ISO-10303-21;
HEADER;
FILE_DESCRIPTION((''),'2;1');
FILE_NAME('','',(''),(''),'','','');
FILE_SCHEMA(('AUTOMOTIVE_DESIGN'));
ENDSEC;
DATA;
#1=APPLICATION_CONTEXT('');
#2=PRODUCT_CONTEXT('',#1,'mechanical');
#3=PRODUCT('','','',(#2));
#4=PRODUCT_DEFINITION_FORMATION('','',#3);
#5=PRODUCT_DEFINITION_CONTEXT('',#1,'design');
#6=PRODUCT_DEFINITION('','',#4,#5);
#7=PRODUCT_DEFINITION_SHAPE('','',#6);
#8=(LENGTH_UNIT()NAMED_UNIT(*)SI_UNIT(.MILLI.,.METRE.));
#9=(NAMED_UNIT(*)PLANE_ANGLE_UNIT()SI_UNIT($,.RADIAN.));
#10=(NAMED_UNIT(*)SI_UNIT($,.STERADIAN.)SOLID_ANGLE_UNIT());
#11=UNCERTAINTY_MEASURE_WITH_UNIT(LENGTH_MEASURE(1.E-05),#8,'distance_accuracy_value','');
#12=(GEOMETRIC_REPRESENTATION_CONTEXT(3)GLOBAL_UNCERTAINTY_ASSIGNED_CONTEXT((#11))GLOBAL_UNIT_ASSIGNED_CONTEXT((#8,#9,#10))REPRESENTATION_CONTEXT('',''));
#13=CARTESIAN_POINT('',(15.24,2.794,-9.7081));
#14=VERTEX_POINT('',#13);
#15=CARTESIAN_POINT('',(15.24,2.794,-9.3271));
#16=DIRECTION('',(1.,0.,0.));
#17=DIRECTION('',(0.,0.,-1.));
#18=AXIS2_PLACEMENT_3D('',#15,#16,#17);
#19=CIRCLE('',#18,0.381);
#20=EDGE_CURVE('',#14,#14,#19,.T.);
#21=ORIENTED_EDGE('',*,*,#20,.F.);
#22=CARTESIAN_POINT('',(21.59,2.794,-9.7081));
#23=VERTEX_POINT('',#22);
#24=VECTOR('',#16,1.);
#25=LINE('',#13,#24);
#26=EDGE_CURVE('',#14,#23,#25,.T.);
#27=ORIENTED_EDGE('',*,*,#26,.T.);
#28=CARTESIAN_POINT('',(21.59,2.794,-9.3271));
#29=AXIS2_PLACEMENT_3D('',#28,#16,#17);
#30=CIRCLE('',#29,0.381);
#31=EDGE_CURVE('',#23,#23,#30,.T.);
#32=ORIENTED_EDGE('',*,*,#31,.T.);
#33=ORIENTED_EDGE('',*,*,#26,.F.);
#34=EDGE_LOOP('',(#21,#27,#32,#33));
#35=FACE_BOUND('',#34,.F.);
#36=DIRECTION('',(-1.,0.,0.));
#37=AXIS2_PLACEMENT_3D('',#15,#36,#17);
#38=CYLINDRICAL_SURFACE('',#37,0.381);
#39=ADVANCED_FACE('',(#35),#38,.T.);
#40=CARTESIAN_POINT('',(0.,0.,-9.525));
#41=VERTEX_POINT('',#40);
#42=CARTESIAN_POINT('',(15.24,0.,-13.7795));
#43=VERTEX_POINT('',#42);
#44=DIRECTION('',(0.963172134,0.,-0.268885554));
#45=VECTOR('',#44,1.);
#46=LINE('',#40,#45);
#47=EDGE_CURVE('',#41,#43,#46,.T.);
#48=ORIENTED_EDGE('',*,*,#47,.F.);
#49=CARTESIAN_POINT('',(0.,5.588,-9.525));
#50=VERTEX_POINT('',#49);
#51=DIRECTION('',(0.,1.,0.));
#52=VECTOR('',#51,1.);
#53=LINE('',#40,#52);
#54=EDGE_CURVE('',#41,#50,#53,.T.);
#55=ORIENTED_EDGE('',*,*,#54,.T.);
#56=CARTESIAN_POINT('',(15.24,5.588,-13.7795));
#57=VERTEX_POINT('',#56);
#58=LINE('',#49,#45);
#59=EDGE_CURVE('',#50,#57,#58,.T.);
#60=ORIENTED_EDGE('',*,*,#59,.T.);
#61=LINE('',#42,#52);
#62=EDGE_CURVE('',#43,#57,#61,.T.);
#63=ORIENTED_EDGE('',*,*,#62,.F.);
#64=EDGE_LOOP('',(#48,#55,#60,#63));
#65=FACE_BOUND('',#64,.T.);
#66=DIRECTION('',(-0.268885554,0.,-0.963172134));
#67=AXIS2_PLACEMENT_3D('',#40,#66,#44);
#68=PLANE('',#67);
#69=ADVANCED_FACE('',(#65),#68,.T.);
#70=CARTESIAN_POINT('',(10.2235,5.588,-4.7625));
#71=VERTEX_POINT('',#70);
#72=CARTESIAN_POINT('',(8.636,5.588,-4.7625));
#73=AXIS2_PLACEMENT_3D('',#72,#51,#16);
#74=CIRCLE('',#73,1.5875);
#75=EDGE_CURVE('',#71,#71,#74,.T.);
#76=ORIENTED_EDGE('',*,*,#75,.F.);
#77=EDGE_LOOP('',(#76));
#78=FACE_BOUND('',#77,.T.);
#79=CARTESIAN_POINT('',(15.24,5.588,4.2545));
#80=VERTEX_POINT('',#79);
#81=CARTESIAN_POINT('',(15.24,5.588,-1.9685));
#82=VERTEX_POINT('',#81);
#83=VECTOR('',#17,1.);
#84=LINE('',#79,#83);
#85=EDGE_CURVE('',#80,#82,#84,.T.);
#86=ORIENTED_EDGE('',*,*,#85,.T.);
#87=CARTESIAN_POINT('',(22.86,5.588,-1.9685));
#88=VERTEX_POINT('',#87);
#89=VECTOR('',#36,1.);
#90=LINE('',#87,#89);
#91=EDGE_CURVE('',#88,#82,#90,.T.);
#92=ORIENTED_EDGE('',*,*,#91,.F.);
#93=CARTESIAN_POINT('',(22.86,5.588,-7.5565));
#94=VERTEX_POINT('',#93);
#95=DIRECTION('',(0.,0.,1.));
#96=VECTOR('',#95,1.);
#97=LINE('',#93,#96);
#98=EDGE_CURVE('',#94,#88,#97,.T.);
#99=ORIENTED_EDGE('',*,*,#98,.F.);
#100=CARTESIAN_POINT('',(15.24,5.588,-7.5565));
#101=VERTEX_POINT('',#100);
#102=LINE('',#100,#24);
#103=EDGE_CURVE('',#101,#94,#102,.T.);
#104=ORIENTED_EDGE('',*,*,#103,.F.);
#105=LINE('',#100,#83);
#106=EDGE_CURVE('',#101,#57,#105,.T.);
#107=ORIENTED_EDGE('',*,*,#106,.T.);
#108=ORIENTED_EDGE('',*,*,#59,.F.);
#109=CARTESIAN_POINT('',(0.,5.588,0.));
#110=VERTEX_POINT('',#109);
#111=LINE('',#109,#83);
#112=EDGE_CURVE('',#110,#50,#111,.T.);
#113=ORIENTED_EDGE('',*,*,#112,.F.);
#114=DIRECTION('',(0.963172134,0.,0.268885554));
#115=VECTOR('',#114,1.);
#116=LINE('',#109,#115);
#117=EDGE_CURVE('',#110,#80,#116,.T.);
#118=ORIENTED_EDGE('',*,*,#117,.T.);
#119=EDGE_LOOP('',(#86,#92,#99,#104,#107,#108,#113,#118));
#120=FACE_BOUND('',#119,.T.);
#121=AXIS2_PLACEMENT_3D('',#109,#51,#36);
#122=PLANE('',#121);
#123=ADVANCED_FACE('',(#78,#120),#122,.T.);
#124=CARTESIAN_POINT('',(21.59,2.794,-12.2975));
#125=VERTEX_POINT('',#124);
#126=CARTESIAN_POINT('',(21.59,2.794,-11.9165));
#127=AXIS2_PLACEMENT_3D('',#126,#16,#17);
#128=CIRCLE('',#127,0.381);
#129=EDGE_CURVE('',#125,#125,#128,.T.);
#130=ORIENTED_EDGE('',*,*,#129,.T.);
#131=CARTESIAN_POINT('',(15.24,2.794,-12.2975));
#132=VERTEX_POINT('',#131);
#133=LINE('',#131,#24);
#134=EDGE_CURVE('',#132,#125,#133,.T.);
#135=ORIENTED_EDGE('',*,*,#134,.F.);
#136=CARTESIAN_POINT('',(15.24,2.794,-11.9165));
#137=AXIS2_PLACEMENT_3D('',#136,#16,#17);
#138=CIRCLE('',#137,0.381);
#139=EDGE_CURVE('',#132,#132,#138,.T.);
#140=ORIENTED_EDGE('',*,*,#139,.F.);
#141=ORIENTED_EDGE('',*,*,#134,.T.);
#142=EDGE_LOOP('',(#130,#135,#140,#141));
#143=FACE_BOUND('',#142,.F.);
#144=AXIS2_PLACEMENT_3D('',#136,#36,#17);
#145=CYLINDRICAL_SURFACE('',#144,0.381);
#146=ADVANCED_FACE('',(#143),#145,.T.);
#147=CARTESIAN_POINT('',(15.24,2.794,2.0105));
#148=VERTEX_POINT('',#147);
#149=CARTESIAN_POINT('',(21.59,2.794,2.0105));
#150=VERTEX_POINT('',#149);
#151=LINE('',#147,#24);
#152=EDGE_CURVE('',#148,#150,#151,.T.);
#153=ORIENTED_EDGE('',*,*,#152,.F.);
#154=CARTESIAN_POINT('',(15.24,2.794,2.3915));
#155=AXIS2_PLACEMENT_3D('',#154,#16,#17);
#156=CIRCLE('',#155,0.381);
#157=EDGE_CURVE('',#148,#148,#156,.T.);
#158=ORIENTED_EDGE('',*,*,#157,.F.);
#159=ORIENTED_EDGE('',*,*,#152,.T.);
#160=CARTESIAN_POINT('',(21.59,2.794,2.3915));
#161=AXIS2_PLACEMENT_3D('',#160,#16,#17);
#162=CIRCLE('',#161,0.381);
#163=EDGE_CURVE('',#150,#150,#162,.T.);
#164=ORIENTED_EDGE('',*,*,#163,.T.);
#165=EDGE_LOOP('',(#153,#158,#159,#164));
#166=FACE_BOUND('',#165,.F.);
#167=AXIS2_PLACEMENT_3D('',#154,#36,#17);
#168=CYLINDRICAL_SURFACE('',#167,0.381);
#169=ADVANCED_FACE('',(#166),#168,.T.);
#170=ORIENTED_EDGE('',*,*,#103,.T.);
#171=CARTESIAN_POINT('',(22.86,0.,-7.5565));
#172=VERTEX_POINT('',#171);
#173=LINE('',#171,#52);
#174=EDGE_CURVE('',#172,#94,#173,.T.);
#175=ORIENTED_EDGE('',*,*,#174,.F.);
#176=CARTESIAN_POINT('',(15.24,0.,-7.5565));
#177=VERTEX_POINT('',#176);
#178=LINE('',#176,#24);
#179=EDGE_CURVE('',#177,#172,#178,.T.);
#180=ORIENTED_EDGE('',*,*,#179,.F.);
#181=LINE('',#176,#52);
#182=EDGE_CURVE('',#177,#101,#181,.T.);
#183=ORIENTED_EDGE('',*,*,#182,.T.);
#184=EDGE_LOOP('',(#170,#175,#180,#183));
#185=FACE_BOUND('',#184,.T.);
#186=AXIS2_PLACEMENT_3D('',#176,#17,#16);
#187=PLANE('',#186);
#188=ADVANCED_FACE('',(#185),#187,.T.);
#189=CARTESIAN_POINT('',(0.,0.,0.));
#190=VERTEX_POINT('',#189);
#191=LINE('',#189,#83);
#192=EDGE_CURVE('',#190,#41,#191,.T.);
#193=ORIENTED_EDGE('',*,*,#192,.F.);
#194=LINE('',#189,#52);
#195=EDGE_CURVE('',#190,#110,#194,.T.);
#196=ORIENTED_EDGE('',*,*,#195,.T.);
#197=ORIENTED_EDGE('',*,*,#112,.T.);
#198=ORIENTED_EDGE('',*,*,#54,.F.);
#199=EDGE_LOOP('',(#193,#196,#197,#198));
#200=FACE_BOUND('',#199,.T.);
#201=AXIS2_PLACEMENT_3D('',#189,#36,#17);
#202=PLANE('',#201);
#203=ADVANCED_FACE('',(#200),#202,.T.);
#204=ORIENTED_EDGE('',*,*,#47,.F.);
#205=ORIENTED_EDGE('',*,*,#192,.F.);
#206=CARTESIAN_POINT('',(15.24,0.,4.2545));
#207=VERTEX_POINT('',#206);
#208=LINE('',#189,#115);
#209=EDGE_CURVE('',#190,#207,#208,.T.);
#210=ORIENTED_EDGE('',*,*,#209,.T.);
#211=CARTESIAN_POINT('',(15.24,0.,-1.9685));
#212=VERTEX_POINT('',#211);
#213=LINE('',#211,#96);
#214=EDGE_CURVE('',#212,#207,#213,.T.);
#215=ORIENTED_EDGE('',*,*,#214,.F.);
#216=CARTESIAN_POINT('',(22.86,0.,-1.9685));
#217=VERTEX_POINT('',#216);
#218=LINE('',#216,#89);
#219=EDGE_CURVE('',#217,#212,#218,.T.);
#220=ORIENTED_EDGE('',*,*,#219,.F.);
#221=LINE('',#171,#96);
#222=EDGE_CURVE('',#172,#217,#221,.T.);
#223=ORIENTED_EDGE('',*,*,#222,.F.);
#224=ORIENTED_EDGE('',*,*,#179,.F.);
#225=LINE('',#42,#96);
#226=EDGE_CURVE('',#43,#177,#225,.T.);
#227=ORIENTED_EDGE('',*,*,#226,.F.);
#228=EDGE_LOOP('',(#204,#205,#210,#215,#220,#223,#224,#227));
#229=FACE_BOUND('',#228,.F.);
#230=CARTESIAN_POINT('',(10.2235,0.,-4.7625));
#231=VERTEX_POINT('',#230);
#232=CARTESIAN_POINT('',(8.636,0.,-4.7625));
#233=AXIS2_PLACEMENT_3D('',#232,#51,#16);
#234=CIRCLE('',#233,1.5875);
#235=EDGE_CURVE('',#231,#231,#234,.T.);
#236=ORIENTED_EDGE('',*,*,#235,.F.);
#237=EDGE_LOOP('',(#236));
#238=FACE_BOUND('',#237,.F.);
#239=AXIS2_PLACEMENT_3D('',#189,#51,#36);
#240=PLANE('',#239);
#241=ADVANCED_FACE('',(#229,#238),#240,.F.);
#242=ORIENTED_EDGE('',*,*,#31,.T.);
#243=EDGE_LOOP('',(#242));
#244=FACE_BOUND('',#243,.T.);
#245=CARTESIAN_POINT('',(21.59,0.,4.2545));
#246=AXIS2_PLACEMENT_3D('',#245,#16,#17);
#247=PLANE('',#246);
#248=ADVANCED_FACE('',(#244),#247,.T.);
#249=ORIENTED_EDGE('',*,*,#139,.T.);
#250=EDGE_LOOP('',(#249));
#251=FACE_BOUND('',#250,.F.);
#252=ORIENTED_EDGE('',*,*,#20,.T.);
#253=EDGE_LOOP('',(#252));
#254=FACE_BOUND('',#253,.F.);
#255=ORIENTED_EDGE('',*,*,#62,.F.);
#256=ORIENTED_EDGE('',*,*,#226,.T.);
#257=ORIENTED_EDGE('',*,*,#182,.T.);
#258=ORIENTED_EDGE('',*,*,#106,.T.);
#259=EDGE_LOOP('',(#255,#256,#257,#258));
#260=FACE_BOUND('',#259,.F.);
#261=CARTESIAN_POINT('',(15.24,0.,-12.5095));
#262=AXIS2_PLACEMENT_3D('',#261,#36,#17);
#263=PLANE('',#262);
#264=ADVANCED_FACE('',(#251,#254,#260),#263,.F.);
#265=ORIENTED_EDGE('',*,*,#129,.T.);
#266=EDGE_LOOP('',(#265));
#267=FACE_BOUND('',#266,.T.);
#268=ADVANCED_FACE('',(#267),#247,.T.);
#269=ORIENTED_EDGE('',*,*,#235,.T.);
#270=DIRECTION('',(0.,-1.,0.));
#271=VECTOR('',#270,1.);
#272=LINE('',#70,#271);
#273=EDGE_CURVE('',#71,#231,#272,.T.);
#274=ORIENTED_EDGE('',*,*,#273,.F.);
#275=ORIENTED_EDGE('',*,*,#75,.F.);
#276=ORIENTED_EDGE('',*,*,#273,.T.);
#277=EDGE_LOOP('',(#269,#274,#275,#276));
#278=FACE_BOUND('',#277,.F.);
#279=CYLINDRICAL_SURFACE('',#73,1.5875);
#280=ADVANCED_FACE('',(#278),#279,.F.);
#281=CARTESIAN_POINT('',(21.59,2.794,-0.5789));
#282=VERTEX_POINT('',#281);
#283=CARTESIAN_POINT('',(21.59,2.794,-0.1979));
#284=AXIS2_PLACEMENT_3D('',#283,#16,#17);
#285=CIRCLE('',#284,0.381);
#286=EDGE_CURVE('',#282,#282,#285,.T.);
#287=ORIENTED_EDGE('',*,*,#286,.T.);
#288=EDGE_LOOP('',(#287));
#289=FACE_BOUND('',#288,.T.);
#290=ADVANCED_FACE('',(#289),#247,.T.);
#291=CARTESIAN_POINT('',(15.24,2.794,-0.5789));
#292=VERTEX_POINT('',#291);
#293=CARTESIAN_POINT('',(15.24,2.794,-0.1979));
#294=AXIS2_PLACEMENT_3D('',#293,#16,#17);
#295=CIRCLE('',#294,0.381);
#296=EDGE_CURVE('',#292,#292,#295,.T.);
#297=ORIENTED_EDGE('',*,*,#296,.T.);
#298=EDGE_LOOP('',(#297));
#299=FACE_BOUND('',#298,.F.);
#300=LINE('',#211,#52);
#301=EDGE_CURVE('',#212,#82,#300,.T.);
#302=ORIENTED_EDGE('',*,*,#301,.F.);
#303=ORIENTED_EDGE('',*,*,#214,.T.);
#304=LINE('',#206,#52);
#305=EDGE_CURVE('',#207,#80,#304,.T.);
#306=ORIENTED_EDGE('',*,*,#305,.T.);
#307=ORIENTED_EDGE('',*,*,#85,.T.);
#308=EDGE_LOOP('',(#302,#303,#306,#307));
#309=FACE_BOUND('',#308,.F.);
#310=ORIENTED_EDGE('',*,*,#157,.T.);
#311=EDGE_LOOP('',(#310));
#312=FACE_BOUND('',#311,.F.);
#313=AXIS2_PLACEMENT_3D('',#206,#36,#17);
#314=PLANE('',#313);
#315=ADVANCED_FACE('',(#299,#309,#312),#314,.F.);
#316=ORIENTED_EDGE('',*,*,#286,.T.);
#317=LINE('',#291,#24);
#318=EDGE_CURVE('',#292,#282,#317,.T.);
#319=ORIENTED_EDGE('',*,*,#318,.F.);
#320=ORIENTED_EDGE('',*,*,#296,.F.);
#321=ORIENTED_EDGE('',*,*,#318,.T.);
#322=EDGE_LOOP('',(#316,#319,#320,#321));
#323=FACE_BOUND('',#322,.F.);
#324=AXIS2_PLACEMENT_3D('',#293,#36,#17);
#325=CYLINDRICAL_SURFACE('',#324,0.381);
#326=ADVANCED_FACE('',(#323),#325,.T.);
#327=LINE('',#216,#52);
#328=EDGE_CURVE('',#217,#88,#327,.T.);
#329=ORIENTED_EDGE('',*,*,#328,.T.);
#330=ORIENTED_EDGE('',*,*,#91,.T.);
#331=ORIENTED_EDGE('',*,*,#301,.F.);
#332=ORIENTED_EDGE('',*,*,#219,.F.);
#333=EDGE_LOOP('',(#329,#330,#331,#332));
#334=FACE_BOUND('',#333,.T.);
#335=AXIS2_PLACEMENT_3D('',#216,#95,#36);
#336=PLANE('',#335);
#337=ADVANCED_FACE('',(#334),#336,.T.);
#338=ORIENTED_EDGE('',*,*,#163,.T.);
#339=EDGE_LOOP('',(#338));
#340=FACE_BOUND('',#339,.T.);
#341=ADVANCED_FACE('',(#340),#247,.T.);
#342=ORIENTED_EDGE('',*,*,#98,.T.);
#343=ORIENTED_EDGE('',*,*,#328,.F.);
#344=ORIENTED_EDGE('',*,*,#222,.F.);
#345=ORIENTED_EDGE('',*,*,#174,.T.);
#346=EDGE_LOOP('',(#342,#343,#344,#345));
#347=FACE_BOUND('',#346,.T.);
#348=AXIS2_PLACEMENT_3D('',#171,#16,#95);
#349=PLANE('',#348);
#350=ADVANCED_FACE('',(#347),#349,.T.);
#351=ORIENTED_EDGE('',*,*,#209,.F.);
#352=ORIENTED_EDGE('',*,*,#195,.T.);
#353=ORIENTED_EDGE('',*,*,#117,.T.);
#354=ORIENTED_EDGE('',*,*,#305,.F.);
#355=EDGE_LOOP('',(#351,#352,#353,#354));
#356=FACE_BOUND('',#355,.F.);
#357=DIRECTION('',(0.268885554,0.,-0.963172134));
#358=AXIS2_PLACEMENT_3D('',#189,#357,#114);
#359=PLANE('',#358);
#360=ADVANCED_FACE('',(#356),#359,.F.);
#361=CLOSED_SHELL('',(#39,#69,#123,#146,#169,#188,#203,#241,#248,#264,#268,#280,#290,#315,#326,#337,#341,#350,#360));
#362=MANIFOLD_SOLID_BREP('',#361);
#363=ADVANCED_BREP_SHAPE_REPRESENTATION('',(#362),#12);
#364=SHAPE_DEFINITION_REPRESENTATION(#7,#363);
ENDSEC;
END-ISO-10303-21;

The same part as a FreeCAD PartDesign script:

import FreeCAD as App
import Part
import Sketcher
from FreeCAD import Vector
Q = App.Units.Quantity


def add_polygon(sketch, points):
    """Adds a closed chain of lines whose ends are joined by coincident constraints."""
    first, n = sketch.GeometryCount, len(points)
    for a, b in zip(points, points[1:] + points[:1]):
        sketch.addGeometry(Part.LineSegment(App.Vector(*a, 0), App.Vector(*b, 0)), False)
    for i in range(n):
        sketch.addConstraint(Sketcher.Constraint("Coincident", first + i, 2, first + (i + 1) % n, 1))

doc = App.newDocument("Part")
body = doc.addObject("PartDesign::Body", "Body")

sketch1 = doc.addObject("Sketcher::SketchObject", "Sketch")
body.addObject(sketch1)
sketch1.AttachmentSupport = (doc.XZ_Plane, [""])
sketch1.MapMode = "FlatFace"
add_polygon(sketch1, [(0, -10), (0, 0), (15, 4), (15, -2), (23, -2), (23, -8), (15, -8), (15, -14)])
sketch1.addConstraint([
    Sketcher.Constraint("Vertical", 0),
    Sketcher.Constraint("Vertical", 2),
    Sketcher.Constraint("Horizontal", 3),
    Sketcher.Constraint("Vertical", 4),
    Sketcher.Constraint("Horizontal", 5),
    Sketcher.Constraint("Vertical", 6),
    Sketcher.Constraint("Coincident", 0, 2, -1, 1),
    Sketcher.Constraint("Vertical", 2, 2, 5, 2),
    Sketcher.Constraint("Equal", 2, 6),
    Sketcher.Constraint("Equal", 1, 7),
    Sketcher.Constraint("DistanceX", 3, 1, 3, 2, Q("0.3 in")),
    Sketcher.Constraint("DistanceY", 4, 2, 4, 1, Q("0.22 in")),
    Sketcher.Constraint("DistanceX", -1, 1, 1, 2, Q("0.6 in")),
    Sketcher.Constraint("DistanceY", 0, 1, 0, 2, Q("0.375 in")),
    Sketcher.Constraint("DistanceY", 2, 2, 2, 1, Q("0.245 in")),
])
pad1 = doc.addObject("PartDesign::Pad", "Pad")
body.addObject(pad1)
pad1.Profile = sketch1
pad1.Length = Q("0.22 in")
pad1.Reversed = True

sketch2 = doc.addObject("Sketcher::SketchObject", "Sketch001")
body.addObject(sketch2)
sketch2.AttachmentSupport = (doc.XZ_Plane, [""])
sketch2.MapMode = "FlatFace"
sketch2.AttachmentOffset = App.Placement(Vector(0, 0, -0.22 * 25.4), App.Rotation())
sketch2.addGeometry(Part.Circle(Vector(8.6, -4.8, 0), Vector(0, 0, 1), 1.6), False)
sketch2.addConstraint([
    Sketcher.Constraint("Diameter", 0, Q("0.125 in")),
    Sketcher.Constraint("DistanceX", -1, 1, 0, 3, Q("0.34 in")),
    Sketcher.Constraint("DistanceY", 0, 3, -1, 1, Q("0.1875 in")),
])
pocket1 = doc.addObject("PartDesign::Pocket", "Pocket")
body.addObject(pocket1)
pocket1.Profile = sketch2
pocket1.Length = Q("0.22 in")
pocket1.Reversed = True

sketch3 = doc.addObject("Sketcher::SketchObject", "Sketch002")
body.addObject(sketch3)
sketch3.AttachmentSupport = (doc.YZ_Plane, [""])
sketch3.MapMode = "FlatFace"
sketch3.AttachmentOffset = App.Placement(Vector(0, 0, 0.6 * 25.4), App.Rotation())
sketch3.addGeometry([
    Part.Circle(Vector(2.79, 2.39, 0), Vector(0, 0, 1), 0.38),
    Part.Circle(Vector(2.79, -0.2, 0), Vector(0, 0, 1), 0.38),
    Part.Circle(Vector(2.79, -11.92, 0), Vector(0, 0, 1), 0.38),
    Part.Circle(Vector(2.79, -9.33, 0), Vector(0, 0, 1), 0.38),
], False)
sketch3.addConstraint([
    Sketcher.Constraint("Equal", 0, 1),
    Sketcher.Constraint("Equal", 1, 2),
    Sketcher.Constraint("Equal", 2, 3),
    Sketcher.Constraint("Vertical", 0, 3, 1, 3),
    Sketcher.Constraint("Vertical", 1, 3, 2, 3),
    Sketcher.Constraint("Vertical", 2, 3, 3, 3),
    Sketcher.Constraint("Diameter", 0, Q("0.03 in")),
    Sketcher.Constraint("DistanceX", -1, 1, 0, 3, Q("0.11 in")),
    Sketcher.Constraint("DistanceY", 1, 3, -1, 1, Q("0.0078 in")),
    Sketcher.Constraint("DistanceY", 3, 3, -1, 1, Q("0.3672 in")),
    Sketcher.Constraint("DistanceY", 2, 3, 0, 3, Q("0.5633 in")),
    Sketcher.Constraint("DistanceY", -1, 1, 0, 3, 2.3915),
])
pad2 = doc.addObject("PartDesign::Pad", "Pad001")
body.addObject(pad2)
pad2.Profile = sketch3
pad2.Length = Q("0.25 in")

doc.recompute()
